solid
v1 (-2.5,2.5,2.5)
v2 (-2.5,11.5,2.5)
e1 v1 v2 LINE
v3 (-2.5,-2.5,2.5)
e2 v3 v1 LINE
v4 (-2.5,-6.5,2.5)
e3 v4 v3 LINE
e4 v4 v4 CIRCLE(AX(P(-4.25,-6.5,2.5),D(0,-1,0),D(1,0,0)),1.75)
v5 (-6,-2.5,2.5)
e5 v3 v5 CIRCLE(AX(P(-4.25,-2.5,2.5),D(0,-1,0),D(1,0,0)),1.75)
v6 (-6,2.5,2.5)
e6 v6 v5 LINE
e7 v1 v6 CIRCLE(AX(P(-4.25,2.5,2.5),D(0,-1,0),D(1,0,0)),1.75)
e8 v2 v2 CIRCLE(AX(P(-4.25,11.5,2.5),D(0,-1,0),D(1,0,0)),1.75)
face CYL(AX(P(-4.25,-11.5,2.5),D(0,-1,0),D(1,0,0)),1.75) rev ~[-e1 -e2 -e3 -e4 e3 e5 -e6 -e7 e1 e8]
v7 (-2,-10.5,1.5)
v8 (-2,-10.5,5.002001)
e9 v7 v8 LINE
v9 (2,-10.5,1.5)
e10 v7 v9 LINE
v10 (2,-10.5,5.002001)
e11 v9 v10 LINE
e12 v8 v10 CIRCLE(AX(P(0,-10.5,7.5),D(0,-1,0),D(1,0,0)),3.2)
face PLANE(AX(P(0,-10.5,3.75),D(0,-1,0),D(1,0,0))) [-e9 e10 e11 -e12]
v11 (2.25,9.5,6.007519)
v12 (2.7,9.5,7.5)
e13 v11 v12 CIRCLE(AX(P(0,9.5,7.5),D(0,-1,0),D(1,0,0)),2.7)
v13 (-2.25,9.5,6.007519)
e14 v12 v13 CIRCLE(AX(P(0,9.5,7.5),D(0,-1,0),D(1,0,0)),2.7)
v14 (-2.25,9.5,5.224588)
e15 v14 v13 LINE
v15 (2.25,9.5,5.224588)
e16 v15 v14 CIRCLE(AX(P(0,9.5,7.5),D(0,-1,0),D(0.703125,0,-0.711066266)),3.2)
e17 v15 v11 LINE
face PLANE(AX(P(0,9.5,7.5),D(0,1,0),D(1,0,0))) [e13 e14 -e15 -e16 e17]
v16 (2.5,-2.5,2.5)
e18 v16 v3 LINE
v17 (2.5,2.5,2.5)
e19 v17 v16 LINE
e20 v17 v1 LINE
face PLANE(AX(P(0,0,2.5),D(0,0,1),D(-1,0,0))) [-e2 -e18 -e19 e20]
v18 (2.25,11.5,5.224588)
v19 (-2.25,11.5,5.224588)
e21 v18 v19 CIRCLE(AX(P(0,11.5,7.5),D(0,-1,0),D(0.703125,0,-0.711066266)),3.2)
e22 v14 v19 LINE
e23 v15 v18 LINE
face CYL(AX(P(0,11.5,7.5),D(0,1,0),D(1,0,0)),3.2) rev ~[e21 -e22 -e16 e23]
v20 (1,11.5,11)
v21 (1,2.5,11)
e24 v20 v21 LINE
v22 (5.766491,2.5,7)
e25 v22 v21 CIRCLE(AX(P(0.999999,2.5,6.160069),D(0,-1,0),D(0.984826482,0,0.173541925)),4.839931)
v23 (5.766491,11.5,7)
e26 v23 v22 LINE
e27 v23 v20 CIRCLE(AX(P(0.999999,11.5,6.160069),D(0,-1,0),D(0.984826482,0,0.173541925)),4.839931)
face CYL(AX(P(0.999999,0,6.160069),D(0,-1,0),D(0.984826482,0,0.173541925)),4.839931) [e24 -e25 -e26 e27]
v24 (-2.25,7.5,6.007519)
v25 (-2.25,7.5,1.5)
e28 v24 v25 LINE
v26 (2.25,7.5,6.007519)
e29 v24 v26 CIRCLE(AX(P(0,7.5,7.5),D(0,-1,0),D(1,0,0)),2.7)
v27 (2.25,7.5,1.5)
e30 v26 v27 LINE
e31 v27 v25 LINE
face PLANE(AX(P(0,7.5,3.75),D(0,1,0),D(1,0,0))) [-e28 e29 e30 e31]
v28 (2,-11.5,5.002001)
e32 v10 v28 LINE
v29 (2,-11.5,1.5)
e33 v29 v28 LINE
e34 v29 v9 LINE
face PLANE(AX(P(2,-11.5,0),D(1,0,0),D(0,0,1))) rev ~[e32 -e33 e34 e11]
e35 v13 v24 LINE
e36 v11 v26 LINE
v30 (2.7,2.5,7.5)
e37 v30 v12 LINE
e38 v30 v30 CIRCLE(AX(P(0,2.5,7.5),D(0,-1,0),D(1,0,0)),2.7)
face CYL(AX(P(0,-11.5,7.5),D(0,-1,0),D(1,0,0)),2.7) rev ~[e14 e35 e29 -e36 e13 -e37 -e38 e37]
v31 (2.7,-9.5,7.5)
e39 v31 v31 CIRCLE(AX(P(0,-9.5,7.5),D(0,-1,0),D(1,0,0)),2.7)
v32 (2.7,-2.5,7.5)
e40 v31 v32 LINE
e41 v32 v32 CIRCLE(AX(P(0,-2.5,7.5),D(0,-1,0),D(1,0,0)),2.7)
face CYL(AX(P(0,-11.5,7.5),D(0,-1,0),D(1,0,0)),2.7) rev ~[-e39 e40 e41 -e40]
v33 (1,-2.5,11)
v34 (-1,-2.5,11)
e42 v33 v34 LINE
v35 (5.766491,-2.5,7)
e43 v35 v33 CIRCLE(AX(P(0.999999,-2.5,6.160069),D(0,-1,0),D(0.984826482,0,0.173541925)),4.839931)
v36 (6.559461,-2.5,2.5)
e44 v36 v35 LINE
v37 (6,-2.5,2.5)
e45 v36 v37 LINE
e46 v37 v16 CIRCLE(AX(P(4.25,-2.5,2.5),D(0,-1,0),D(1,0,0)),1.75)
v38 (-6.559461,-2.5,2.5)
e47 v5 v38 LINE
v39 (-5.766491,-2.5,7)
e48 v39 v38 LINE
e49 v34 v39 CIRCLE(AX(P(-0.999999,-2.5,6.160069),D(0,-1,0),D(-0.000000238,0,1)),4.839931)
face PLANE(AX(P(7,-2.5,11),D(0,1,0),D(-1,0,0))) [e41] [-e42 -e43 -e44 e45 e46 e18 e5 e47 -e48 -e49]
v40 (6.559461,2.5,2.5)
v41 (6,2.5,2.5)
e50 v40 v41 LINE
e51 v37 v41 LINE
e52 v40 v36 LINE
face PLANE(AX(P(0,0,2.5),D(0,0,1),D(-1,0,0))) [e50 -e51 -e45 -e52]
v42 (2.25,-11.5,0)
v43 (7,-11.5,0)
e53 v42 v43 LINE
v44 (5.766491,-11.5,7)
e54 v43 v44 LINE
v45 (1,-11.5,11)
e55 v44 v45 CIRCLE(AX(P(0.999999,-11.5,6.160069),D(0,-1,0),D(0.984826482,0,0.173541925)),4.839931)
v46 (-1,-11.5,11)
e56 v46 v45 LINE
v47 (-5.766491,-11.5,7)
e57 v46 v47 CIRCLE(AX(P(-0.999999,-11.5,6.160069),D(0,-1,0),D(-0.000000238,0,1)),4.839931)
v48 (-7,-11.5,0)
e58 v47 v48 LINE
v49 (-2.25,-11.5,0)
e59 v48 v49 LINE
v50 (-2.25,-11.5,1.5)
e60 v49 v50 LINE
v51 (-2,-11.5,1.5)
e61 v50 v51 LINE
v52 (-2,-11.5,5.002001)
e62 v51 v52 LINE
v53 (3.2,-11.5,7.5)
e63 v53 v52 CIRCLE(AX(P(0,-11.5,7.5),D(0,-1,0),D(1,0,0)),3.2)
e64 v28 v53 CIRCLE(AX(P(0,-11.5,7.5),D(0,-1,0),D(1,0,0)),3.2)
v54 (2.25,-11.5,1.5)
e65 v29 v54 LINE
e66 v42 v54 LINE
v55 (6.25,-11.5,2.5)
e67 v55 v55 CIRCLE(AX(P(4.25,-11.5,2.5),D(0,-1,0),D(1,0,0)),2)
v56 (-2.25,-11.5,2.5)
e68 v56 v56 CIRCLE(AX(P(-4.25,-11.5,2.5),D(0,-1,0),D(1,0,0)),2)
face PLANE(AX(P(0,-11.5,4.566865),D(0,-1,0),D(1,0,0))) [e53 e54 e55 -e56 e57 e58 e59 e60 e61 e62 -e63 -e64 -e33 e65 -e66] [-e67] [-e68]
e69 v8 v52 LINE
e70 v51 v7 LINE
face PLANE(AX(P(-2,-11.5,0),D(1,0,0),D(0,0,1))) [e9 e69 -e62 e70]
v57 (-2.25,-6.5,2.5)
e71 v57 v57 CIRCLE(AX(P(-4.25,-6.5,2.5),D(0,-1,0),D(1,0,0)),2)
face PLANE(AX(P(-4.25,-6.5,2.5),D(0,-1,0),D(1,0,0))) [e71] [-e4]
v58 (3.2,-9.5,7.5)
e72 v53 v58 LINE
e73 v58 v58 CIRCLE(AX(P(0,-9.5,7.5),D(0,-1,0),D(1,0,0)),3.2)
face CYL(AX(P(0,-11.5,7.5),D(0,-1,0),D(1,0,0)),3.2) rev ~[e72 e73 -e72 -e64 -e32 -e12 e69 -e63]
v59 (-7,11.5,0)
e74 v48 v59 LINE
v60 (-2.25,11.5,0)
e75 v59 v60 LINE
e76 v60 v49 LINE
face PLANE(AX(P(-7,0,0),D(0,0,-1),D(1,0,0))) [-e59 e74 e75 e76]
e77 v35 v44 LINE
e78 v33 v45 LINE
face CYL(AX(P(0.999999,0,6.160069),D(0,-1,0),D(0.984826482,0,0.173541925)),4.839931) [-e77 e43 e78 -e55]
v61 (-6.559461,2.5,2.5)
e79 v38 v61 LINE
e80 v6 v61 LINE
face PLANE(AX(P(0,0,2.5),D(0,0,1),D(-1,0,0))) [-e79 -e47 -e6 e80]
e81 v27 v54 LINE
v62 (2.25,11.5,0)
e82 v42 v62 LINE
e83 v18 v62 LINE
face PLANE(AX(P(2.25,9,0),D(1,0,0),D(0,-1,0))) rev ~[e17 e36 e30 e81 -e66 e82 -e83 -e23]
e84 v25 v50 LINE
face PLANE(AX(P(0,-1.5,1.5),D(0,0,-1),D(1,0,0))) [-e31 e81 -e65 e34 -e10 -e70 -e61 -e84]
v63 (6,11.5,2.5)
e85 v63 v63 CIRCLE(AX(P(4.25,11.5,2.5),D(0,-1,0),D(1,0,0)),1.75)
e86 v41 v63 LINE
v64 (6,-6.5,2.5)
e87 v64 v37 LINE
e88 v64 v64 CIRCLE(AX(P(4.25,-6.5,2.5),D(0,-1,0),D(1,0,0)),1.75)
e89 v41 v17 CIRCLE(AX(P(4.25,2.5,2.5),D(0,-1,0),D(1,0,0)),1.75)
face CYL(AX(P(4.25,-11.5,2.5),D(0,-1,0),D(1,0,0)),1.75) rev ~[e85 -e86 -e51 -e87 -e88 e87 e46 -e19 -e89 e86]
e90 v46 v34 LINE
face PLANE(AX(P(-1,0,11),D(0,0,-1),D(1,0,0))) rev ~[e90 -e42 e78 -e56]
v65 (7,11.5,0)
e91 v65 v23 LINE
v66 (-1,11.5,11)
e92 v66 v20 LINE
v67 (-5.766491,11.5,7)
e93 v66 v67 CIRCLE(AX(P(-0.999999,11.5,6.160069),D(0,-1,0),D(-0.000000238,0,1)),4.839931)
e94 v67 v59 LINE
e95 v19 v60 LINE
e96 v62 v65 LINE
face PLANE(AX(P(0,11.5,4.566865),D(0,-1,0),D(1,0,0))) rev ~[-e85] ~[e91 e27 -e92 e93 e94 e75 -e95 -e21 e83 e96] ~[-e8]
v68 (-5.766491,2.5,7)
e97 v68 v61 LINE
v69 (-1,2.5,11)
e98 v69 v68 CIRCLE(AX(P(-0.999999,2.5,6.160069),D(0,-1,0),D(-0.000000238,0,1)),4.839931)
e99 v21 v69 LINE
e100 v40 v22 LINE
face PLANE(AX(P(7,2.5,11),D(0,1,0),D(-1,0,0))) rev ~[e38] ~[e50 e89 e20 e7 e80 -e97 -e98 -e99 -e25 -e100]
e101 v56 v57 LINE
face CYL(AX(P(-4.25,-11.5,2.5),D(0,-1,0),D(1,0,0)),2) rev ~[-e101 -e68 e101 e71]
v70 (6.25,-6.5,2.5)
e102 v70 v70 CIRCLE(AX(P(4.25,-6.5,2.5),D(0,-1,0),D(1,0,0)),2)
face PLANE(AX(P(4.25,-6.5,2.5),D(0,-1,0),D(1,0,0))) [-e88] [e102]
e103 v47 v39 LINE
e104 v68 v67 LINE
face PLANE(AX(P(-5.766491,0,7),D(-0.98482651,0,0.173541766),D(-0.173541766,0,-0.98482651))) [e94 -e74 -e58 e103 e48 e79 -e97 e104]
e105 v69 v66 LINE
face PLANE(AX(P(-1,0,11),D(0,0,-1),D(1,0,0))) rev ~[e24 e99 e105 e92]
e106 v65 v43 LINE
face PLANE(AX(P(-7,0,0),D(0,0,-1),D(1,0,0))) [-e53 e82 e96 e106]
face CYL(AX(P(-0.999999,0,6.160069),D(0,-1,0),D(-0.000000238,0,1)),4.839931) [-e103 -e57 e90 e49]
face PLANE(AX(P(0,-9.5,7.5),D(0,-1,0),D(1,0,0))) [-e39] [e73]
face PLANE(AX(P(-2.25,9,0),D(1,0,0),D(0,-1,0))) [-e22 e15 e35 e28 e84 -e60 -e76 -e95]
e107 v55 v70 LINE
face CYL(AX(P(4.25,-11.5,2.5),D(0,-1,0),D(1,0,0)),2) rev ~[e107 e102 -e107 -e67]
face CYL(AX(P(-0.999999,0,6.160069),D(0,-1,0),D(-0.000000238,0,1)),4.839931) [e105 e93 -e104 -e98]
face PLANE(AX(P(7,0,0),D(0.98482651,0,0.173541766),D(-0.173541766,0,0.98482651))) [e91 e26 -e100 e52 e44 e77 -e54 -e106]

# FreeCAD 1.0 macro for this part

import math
import FreeCAD as App
import Part
import Sketcher

V = App.Vector
Q = App.Units.Quantity

doc = App.newDocument("Part")
body = doc.addObject("PartDesign::Body", "Body")

# Sketch on XZ plane
sketch1 = doc.addObject("Sketcher::SketchObject", "Sketch")
body.addObject(sketch1)
sketch1.AttachmentSupport = (doc.XZ_Plane, [""])
sketch1.MapMode = "FlatFace"
sketch1.addGeometry(Part.LineSegment(V(-7, 0, 0), V(7, 0, 0)), False)
sketch1.addGeometry(Part.LineSegment(V(7, 0, 0), V(5.8, 7, 0)), False)
sketch1.addGeometry(Part.ArcOfCircle(Part.Circle(V(1, 6.2, 0), V(0, 0, 1), 4.8), math.radians(10), math.radians(90)), False)
sketch1.addGeometry(Part.LineSegment(V(1, 11, 0), V(-1, 11, 0)), False)
sketch1.addGeometry(Part.ArcOfCircle(Part.Circle(V(-1, 6.2, 0), V(0, 0, 1), 4.8), math.radians(90), math.radians(170)), False)
sketch1.addGeometry(Part.LineSegment(V(-5.8, 7, 0), V(-7, 0, 0)), False)
sketch1.addConstraint(Sketcher.Constraint("Coincident", 0, 2, 1, 1))
sketch1.addConstraint(Sketcher.Constraint("Tangent", 1, 2, 2, 1))
sketch1.addConstraint(Sketcher.Constraint("Tangent", 2, 2, 3, 1))
sketch1.addConstraint(Sketcher.Constraint("Tangent", 3, 2, 4, 1))
sketch1.addConstraint(Sketcher.Constraint("Tangent", 4, 2, 5, 1))
sketch1.addConstraint(Sketcher.Constraint("Coincident", 5, 2, 0, 1))
sketch1.addConstraint(Sketcher.Constraint("Horizontal", 0))
sketch1.addConstraint(Sketcher.Constraint("Horizontal", 3))
sketch1.addConstraint(Sketcher.Constraint("Equal", 2, 4))
sketch1.addConstraint(Sketcher.Constraint("Symmetric", 0, 2, 5, 2, -1, 1))
sketch1.addConstraint(Sketcher.Constraint("Horizontal", 1, 2, 4, 2))
sketch1.addConstraint(Sketcher.Constraint("DistanceX", 0, 1, 0, 2, Q("14 mm")))
sketch1.addConstraint(Sketcher.Constraint("DistanceX", 3, 2, 3, 1, Q("2 mm")))
sketch1.addConstraint(Sketcher.Constraint("DistanceY", -1, 1, 1, 2, Q("7 mm")))
sketch1.addConstraint(Sketcher.Constraint("DistanceY", -1, 1, 2, 2, Q("11 mm")))
pad1 = doc.addObject("PartDesign::Pad", "Pad")
body.addObject(pad1)
pad1.Profile = sketch1
pad1.Length = 23
pad1.Midplane = True

# Sketch on XY plane
sketch2 = doc.addObject("Sketcher::SketchObject", "Sketch001")
body.addObject(sketch2)
sketch2.AttachmentSupport = (doc.XY_Plane, [""])
sketch2.MapMode = "FlatFace"
sketch2.AttachmentOffset = App.Placement(V(0, 0, 11), App.Rotation())
sketch2.addGeometry(Part.LineSegment(V(7, -2, 0), V(7, 2, 0)), False)
sketch2.addGeometry(Part.LineSegment(V(7, 2, 0), V(-7, 2, 0)), False)
sketch2.addGeometry(Part.LineSegment(V(-7, 2, 0), V(-7, -2, 0)), False)
sketch2.addGeometry(Part.LineSegment(V(-7, -2, 0), V(7, -2, 0)), False)
sketch2.addConstraint(Sketcher.Constraint("Coincident", 0, 2, 1, 1))
sketch2.addConstraint(Sketcher.Constraint("Coincident", 1, 2, 2, 1))
sketch2.addConstraint(Sketcher.Constraint("Coincident", 2, 2, 3, 1))
sketch2.addConstraint(Sketcher.Constraint("Coincident", 3, 2, 0, 1))
sketch2.addConstraint(Sketcher.Constraint("Vertical", 0))
sketch2.addConstraint(Sketcher.Constraint("Horizontal", 1))
sketch2.addConstraint(Sketcher.Constraint("Vertical", 2))
sketch2.addConstraint(Sketcher.Constraint("Horizontal", 3))
sketch2.addConstraint(Sketcher.Constraint("Symmetric", 0, 2, 2, 2, -1, 1))
sketch2.addConstraint(Sketcher.Constraint("DistanceX", 1, 2, 1, 1, Q("14 mm")))
sketch2.addConstraint(Sketcher.Constraint("DistanceY", 0, 1, 0, 2, Q("5 mm")))
pocket1 = doc.addObject("PartDesign::Pocket", "Pocket")
body.addObject(pocket1)
pocket1.Profile = sketch2
pocket1.Length = 8.5

# Sketch on XZ plane
sketch3 = doc.addObject("Sketcher::SketchObject", "Sketch002")
body.addObject(sketch3)
sketch3.AttachmentSupport = (doc.XZ_Plane, [""])
sketch3.MapMode = "FlatFace"
sketch3.AttachmentOffset = App.Placement(V(0, 0, 11.5), App.Rotation())
sketch3.addGeometry(Part.Circle(V(-4.2, 2.5, 0), V(0, 0, 1), 1.8), False)
sketch3.addGeometry(Part.Circle(V(4.2, 2.5, 0), V(0, 0, 1), 1.8), False)
sketch3.addConstraint(Sketcher.Constraint("Equal", 0, 1))
sketch3.addConstraint(Sketcher.Constraint("Symmetric", 0, 3, 1, 3, -2))
sketch3.addConstraint(Sketcher.Constraint("Diameter", 0, Q("3.5 mm")))
sketch3.addConstraint(Sketcher.Constraint("DistanceY", -1, 1, 0, 3, Q("2.5 mm")))
sketch3.addConstraint(Sketcher.Constraint("DistanceX", 0, 3, 1, 3, Q("8.5 mm")))
pocket2 = doc.addObject("PartDesign::Pocket", "Pocket001")
body.addObject(pocket2)
pocket2.Profile = sketch3
pocket2.Type = "ThroughAll"

# Sketch on XZ plane
sketch4 = doc.addObject("Sketcher::SketchObject", "Sketch003")
body.addObject(sketch4)
sketch4.AttachmentSupport = (doc.XZ_Plane, [""])
sketch4.MapMode = "FlatFace"
sketch4.AttachmentOffset = App.Placement(V(0, 0, 11.5), App.Rotation())
sketch4.addGeometry(Part.Circle(V(0, 7.5, 0), V(0, 0, 1), 2.7), False)
sketch4.addConstraint(Sketcher.Constraint("PointOnObject", 0, 3, -2))
sketch4.addConstraint(Sketcher.Constraint("Diameter", 0, Q("5.4 mm")))
sketch4.addConstraint(Sketcher.Constraint("DistanceY", -1, 1, 0, 3, Q("7.5 mm")))
pocket3 = doc.addObject("PartDesign::Pocket", "Pocket002")
body.addObject(pocket3)
pocket3.Profile = sketch4
pocket3.Type = "ThroughAll"

# Sketch on XZ plane
sketch5 = doc.addObject("Sketcher::SketchObject", "Sketch004")
body.addObject(sketch5)
sketch5.AttachmentSupport = (doc.XZ_Plane, [""])
sketch5.MapMode = "FlatFace"
sketch5.AttachmentOffset = App.Placement(V(0, 0, 11.5), App.Rotation())
sketch5.addGeometry(Part.Circle(V(-4.2, 2.5, 0), V(0, 0, 1), 2), False)
sketch5.addGeometry(Part.Circle(V(4.2, 2.5, 0), V(0, 0, 1), 2), False)
sketch5.addConstraint(Sketcher.Constraint("Equal", 0, 1))
sketch5.addConstraint(Sketcher.Constraint("Symmetric", 0, 3, 1, 3, -2))
sketch5.addConstraint(Sketcher.Constraint("Diameter", 0, Q("4 mm")))
sketch5.addConstraint(Sketcher.Constraint("DistanceY", -1, 1, 0, 3, Q("2.5 mm")))
sketch5.addConstraint(Sketcher.Constraint("DistanceX", 0, 3, 1, 3, Q("8.5 mm")))
pocket4 = doc.addObject("PartDesign::Pocket", "Pocket003")
body.addObject(pocket4)
pocket4.Profile = sketch5
pocket4.Length = 5

# Sketch on XZ plane
sketch6 = doc.addObject("Sketcher::SketchObject", "Sketch005")
body.addObject(sketch6)
sketch6.AttachmentSupport = (doc.XZ_Plane, [""])
sketch6.MapMode = "FlatFace"
sketch6.AttachmentOffset = App.Placement(V(0, 0, -11.5), App.Rotation())
sketch6.addGeometry(Part.LineSegment(V(-2.2, 0, 0), V(-2.2, 7.5, 0)), False)
sketch6.addGeometry(Part.LineSegment(V(-2.2, 7.5, 0), V(2.2, 7.5, 0)), False)
sketch6.addGeometry(Part.LineSegment(V(2.2, 7.5, 0), V(2.2, 0, 0)), False)
sketch6.addGeometry(Part.LineSegment(V(2.2, 0, 0), V(-2.2, 0, 0)), False)
sketch6.addConstraint(Sketcher.Constraint("Coincident", 0, 2, 1, 1))
sketch6.addConstraint(Sketcher.Constraint("Coincident", 1, 2, 2, 1))
sketch6.addConstraint(Sketcher.Constraint("Coincident", 2, 2, 3, 1))
sketch6.addConstraint(Sketcher.Constraint("Coincident", 3, 2, 0, 1))
sketch6.addConstraint(Sketcher.Constraint("Vertical", 0))
sketch6.addConstraint(Sketcher.Constraint("Horizontal", 1))
sketch6.addConstraint(Sketcher.Constraint("Vertical", 2))
sketch6.addConstraint(Sketcher.Constraint("Horizontal", 3))
sketch6.addConstraint(Sketcher.Constraint("Symmetric", 2, 2, 3, 2, -1, 1))
sketch6.addConstraint(Sketcher.Constraint("DistanceX", 1, 1, 1, 2, Q("4.5 mm")))
sketch6.addConstraint(Sketcher.Constraint("DistanceY", 0, 1, 0, 2, Q("7.5 mm")))
pocket5 = doc.addObject("PartDesign::Pocket", "Pocket004")
body.addObject(pocket5)
pocket5.Profile = sketch6
pocket5.Length = 4
pocket5.Reversed = True

# Sketch on XZ plane
sketch7 = doc.addObject("Sketcher::SketchObject", "Sketch006")
body.addObject(sketch7)
sketch7.AttachmentSupport = (doc.XZ_Plane, [""])
sketch7.MapMode = "FlatFace"
sketch7.AttachmentOffset = App.Placement(V(0, 0, 11.5), App.Rotation())
sketch7.addGeometry(Part.LineSegment(V(-2, 7.5, 0), V(-2, 0, 0)), False)
sketch7.addGeometry(Part.LineSegment(V(-2, 0, 0), V(2, 0, 0)), False)
sketch7.addGeometry(Part.LineSegment(V(2, 0, 0), V(2, 7.5, 0)), False)
sketch7.addGeometry(Part.LineSegment(V(2, 7.5, 0), V(-2, 7.5, 0)), False)
sketch7.addConstraint(Sketcher.Constraint("Coincident", 0, 2, 1, 1))
sketch7.addConstraint(Sketcher.Constraint("Coincident", 1, 2, 2, 1))
sketch7.addConstraint(Sketcher.Constraint("Coincident", 2, 2, 3, 1))
sketch7.addConstraint(Sketcher.Constraint("Coincident", 3, 2, 0, 1))
sketch7.addConstraint(Sketcher.Constraint("Vertical", 0))
sketch7.addConstraint(Sketcher.Constraint("Horizontal", 1))
sketch7.addConstraint(Sketcher.Constraint("Vertical", 2))
sketch7.addConstraint(Sketcher.Constraint("Horizontal", 3))
sketch7.addConstraint(Sketcher.Constraint("Symmetric", 0, 2, 1, 2, -1, 1))
sketch7.addConstraint(Sketcher.Constraint("DistanceX", 1, 1, 1, 2, Q("4 mm")))
sketch7.addConstraint(Sketcher.Constraint("DistanceY", 0, 2, 0, 1, Q("7.5 mm")))
pocket6 = doc.addObject("PartDesign::Pocket", "Pocket005")
body.addObject(pocket6)
pocket6.Profile = sketch7
pocket6.Length = 1

# Sketch on XY plane
sketch8 = doc.addObject("Sketcher::SketchObject", "Sketch007")
body.addObject(sketch8)
sketch8.AttachmentSupport = (doc.XY_Plane, [""])
sketch8.MapMode = "FlatFace"
sketch8.addGeometry(Part.LineSegment(V(-2.2, -12, 0), V(-2.2, 9, 0)), False)
sketch8.addGeometry(Part.LineSegment(V(-2.2, 9, 0), V(2.2, 9, 0)), False)
sketch8.addGeometry(Part.LineSegment(V(2.2, 9, 0), V(2.2, -12, 0)), False)
sketch8.addGeometry(Part.LineSegment(V(2.2, -12, 0), V(-2.2, -12, 0)), False)
sketch8.addConstraint(Sketcher.Constraint("Coincident", 0, 2, 1, 1))
sketch8.addConstraint(Sketcher.Constraint("Coincident", 1, 2, 2, 1))
sketch8.addConstraint(Sketcher.Constraint("Coincident", 2, 2, 3, 1))
sketch8.addConstraint(Sketcher.Constraint("Coincident", 3, 2, 0, 1))
sketch8.addConstraint(Sketcher.Constraint("Vertical", 0))
sketch8.addConstraint(Sketcher.Constraint("Horizontal", 1))
sketch8.addConstraint(Sketcher.Constraint("Vertical", 2))
sketch8.addConstraint(Sketcher.Constraint("Horizontal", 3))
sketch8.addConstraint(Sketcher.Constraint("DistanceY", 0, 1, 0, 2, Q("21 mm")))
sketch8.addConstraint(Sketcher.Constraint("DistanceX", 1, 1, 1, 2, Q("4.5 mm")))
sketch8.addConstraint(Sketcher.Constraint("DistanceY", -1, 1, 0, 2, Q("9 mm")))
sketch8.addConstraint(Sketcher.Constraint("DistanceX", 0, 2, -1, 1, Q("2.25 mm")))
pocket7 = doc.addObject("PartDesign::Pocket", "Pocket006")
body.addObject(pocket7)
pocket7.Profile = sketch8
pocket7.Length = 1.5
pocket7.Reversed = True

# Sketch on XZ plane
sketch9 = doc.addObject("Sketcher::SketchObject", "Sketch008")
body.addObject(sketch9)
sketch9.AttachmentSupport = (doc.XZ_Plane, [""])
sketch9.MapMode = "FlatFace"
sketch9.AttachmentOffset = App.Placement(V(0, 0, -11.5), App.Rotation())
sketch9.addGeometry(Part.Circle(V(0, 7.5, 0), V(0, 0, 1), 3.2), False)
sketch9.addConstraint(Sketcher.Constraint("PointOnObject", 0, 3, -2))
sketch9.addConstraint(Sketcher.Constraint("Diameter", 0, Q("6.4 mm")))
sketch9.addConstraint(Sketcher.Constraint("DistanceY", -1, 1, 0, 3, Q("7.5 mm")))
pocket8 = doc.addObject("PartDesign::Pocket", "Pocket007")
body.addObject(pocket8)
pocket8.Profile = sketch9
pocket8.Length = 2
pocket8.Reversed = True

# Sketch on XZ plane
sketch10 = doc.addObject("Sketcher::SketchObject", "Sketch009")
body.addObject(sketch10)
sketch10.AttachmentSupport = (doc.XZ_Plane, [""])
sketch10.MapMode = "FlatFace"
sketch10.AttachmentOffset = App.Placement(V(0, 0, 11.5), App.Rotation())
sketch10.addGeometry(Part.Circle(V(0, 7.5, 0), V(0, 0, 1), 3.2), False)
sketch10.addConstraint(Sketcher.Constraint("PointOnObject", 0, 3, -2))
sketch10.addConstraint(Sketcher.Constraint("Diameter", 0, Q("6.4 mm")))
sketch10.addConstraint(Sketcher.Constraint("DistanceY", -1, 1, 0, 3, Q("7.5 mm")))
pocket9 = doc.addObject("PartDesign::Pocket", "Pocket008")
body.addObject(pocket9)
pocket9.Profile = sketch10
pocket9.Length = 2

doc.recompute()
